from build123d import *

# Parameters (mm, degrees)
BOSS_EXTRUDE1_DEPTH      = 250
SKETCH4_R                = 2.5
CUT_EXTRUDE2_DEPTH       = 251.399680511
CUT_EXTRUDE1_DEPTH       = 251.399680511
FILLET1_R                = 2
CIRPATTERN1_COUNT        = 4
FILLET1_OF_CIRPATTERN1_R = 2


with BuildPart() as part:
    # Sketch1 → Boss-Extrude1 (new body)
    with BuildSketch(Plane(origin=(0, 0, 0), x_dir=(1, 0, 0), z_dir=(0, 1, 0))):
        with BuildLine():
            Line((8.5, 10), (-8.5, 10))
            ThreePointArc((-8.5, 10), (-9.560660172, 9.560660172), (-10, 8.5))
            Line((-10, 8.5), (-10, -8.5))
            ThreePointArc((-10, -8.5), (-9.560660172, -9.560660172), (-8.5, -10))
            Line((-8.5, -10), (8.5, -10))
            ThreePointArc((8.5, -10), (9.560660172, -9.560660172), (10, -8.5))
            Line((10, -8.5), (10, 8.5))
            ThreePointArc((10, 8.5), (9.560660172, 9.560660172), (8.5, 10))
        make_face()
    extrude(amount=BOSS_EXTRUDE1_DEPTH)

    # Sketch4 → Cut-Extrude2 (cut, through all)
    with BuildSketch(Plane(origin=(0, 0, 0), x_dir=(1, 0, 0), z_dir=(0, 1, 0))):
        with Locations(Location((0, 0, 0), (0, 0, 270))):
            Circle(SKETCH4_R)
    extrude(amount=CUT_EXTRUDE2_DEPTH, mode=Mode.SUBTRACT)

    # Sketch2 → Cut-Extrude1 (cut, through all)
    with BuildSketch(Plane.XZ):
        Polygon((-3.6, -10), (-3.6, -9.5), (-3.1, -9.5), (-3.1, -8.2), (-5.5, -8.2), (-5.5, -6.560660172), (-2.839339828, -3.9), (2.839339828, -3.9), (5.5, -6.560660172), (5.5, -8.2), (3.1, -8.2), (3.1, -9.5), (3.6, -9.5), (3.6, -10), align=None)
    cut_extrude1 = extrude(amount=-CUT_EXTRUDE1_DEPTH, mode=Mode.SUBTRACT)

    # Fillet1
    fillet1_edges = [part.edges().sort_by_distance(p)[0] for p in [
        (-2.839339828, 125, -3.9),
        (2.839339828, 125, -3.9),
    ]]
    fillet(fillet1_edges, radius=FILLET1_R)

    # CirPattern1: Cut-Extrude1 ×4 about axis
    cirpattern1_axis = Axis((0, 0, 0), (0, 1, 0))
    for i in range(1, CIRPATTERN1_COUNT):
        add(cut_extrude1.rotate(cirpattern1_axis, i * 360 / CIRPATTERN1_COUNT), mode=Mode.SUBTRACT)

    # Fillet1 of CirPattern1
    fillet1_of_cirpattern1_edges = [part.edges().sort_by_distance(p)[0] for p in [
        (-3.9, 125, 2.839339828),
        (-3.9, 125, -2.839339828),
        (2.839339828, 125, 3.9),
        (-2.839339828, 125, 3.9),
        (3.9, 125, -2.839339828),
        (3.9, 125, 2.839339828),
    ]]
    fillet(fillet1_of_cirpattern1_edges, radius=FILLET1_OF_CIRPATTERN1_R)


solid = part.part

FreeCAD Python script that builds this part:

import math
import FreeCAD as App
import Part
import Sketcher
from FreeCAD import Vector
Q = App.Units.Quantity


def edges_at(feature, points):
    """Names of the edges that pass closest to the given points."""
    edges = feature.Shape.Edges
    near = lambda p: min(range(len(edges)), key=lambda i: edges[i].distToShape(Part.Vertex(*p))[0])
    return sorted({f"Edge{near(p) + 1}" for p in points})


def add_polygon(sketch, points):
    """Adds a closed chain of lines whose ends are joined by coincident constraints."""
    first, n = sketch.GeometryCount, len(points)
    for a, b in zip(points, points[1:] + points[:1]):
        sketch.addGeometry(Part.LineSegment(App.Vector(*a, 0), App.Vector(*b, 0)), False)
    for i in range(n):
        sketch.addConstraint(Sketcher.Constraint("Coincident", first + i, 2, first + (i + 1) % n, 1))

doc = App.newDocument("Part")
params = doc.addObject("Spreadsheet::Sheet", "Params")
for row, (alias, value) in enumerate([
    ("sketch1_radius", "1.5 mm"),
    ("sketch1_width", "17 mm"),
    ("pad1_length", "250 mm"),
    ("sketch2_diameter", "5 mm"),
    ("sketch3_width", "7.2 mm"),
    ("sketch3_width2", "0.5 mm"),
    ("sketch3_width3", "2.4 mm"),
    ("sketch3_height", "1.3 mm"),
    ("fillet_radius", "2 mm"),
    ("fillet2_radius", "2 mm"),
], start=1):
    params.set(f"A{row}", alias)
    params.set(f"B{row}", "=" + value)
    params.setAlias(f"B{row}", alias)

body = doc.addObject("PartDesign::Body", "Body")

# Sketch on XZ plane
sketch1 = body.newObject("Sketcher::SketchObject", "Sketch")
sketch1.AttachmentSupport = (doc.getObject("XZ_Plane"), [""])
sketch1.MapMode = "FlatFace"
sketch1.addGeometry(Part.LineSegment(Vector(8.5, -10, 0), Vector(-8.5, -10, 0)), False)
sketch1.addGeometry(Part.ArcOfCircle(Part.Circle(Vector(-8.5, -8.5, 0), Vector(0, 0, 1), 1.5), math.radians(180), math.radians(270)), False)
sketch1.addGeometry(Part.LineSegment(Vector(-10, -8.5, 0), Vector(-10, 8.5, 0)), False)
sketch1.addGeometry(Part.ArcOfCircle(Part.Circle(Vector(-8.5, 8.5, 0), Vector(0, 0, 1), 1.5), math.radians(90), math.radians(180)), False)
sketch1.addGeometry(Part.LineSegment(Vector(-8.5, 10, 0), Vector(8.5, 10, 0)), False)
sketch1.addGeometry(Part.ArcOfCircle(Part.Circle(Vector(8.5, 8.5, 0), Vector(0, 0, 1), 1.5), math.radians(0), math.radians(90)), False)
sketch1.addGeometry(Part.LineSegment(Vector(10, 8.5, 0), Vector(10, -8.5, 0)), False)
sketch1.addGeometry(Part.ArcOfCircle(Part.Circle(Vector(8.5, -8.5, 0), Vector(0, 0, 1), 1.5), math.radians(-90), math.radians(0)), False)
sketch1.addConstraint(Sketcher.Constraint("Tangent", 0, 2, 1, 2))
sketch1.addConstraint(Sketcher.Constraint("Tangent", 1, 1, 2, 1))
sketch1.addConstraint(Sketcher.Constraint("Tangent", 2, 2, 3, 2))
sketch1.addConstraint(Sketcher.Constraint("Tangent", 3, 1, 4, 1))
sketch1.addConstraint(Sketcher.Constraint("Tangent", 4, 2, 5, 2))
sketch1.addConstraint(Sketcher.Constraint("Tangent", 5, 1, 6, 1))
sketch1.addConstraint(Sketcher.Constraint("Tangent", 6, 2, 7, 2))
sketch1.addConstraint(Sketcher.Constraint("Tangent", 7, 1, 0, 1))
sketch1.addConstraint(Sketcher.Constraint("Horizontal", 0))
sketch1.addConstraint(Sketcher.Constraint("Vertical", 2))
sketch1.addConstraint(Sketcher.Constraint("Horizontal", 4))
sketch1.addConstraint(Sketcher.Constraint("Vertical", 6))
sketch1.addConstraint(Sketcher.Constraint("Equal", 1, 3))
sketch1.addConstraint(Sketcher.Constraint("Equal", 3, 5))
sketch1.addConstraint(Sketcher.Constraint("Equal", 5, 7))
sketch1.addConstraint(Sketcher.Constraint("Symmetric", 1, 3, 5, 3, -1, 1))
sketch1.addConstraint(Sketcher.Constraint("Equal", 4, 2))
sketch1.addConstraint(Sketcher.Constraint("Radius", 1, Q("1.5 mm")))
sketch1.addConstraint(Sketcher.Constraint("DistanceX", 0, 2, 0, 1, Q("17 mm")))
sketch1.setExpression("Constraints[17]", "Params.sketch1_radius")
sketch1.setExpression("Constraints[18]", "Params.sketch1_width")
pad1 = body.newObject("PartDesign::Pad", "Pad")
pad1.Profile = sketch1
pad1.setExpression("Length", "Params.pad1_length")
pad1.Reversed = True

# Sketch on XZ plane
sketch2 = body.newObject("Sketcher::SketchObject", "Sketch001")
sketch2.AttachmentSupport = (doc.getObject("XZ_Plane"), [""])
sketch2.MapMode = "FlatFace"
sketch2.addGeometry(Part.Circle(Vector(0, 0, 0), Vector(0, 0, 1), 2.5), False)
sketch2.addConstraint(Sketcher.Constraint("Coincident", 0, 3, -1, 1))
sketch2.addConstraint(Sketcher.Constraint("Diameter", 0, Q("5 mm")))
sketch2.setExpression("Constraints[1]", "Params.sketch2_diameter")
pocket1 = body.newObject("PartDesign::Pocket", "Pocket")
pocket1.Profile = sketch2
pocket1.Type = "ThroughAll"

# Sketch on XZ plane
sketch3 = body.newObject("Sketcher::SketchObject", "Sketch002")
sketch3.AttachmentSupport = (doc.getObject("XZ_Plane"), [""])
sketch3.MapMode = "FlatFace"
add_polygon(sketch3, [(-3.6, -9.5), (-3.6, -10), (3.6, -10), (3.6, -9.5), (3.1, -9.5), (3.1, -8.2), (5.5, -8.2), (5.5, -6.6), (2.8, -3.9), (-2.8, -3.9), (-5.5, -6.6), (-5.5, -8.2), (-3.1, -8.2), (-3.1, -9.5)])  # lines 0-13
sketch3.addConstraint(Sketcher.Constraint("Vertical", 0))
sketch3.addConstraint(Sketcher.Constraint("Horizontal", 1))
sketch3.addConstraint(Sketcher.Constraint("Vertical", 2))
sketch3.addConstraint(Sketcher.Constraint("Horizontal", 3))
sketch3.addConstraint(Sketcher.Constraint("Vertical", 4))
sketch3.addConstraint(Sketcher.Constraint("Horizontal", 5))
sketch3.addConstraint(Sketcher.Constraint("Vertical", 6))
sketch3.addConstraint(Sketcher.Constraint("Horizontal", 8))
sketch3.addConstraint(Sketcher.Constraint("Vertical", 10))
sketch3.addConstraint(Sketcher.Constraint("Horizontal", 11))
sketch3.addConstraint(Sketcher.Constraint("Vertical", 12))
sketch3.addConstraint(Sketcher.Constraint("Horizontal", 13))
sketch3.addConstraint(Sketcher.Constraint("Symmetric", 6, 2, 9, 2, -2))
sketch3.addConstraint(Sketcher.Constraint("Symmetric", 4, 2, 11, 2, -2))
sketch3.addConstraint(Sketcher.Constraint("Symmetric", 2, 2, 13, 2, -2))
sketch3.addConstraint(Sketcher.Constraint("Perpendicular", 7, 9))
sketch3.addConstraint(Sketcher.Constraint("Equal", 13, 0))
sketch3.addConstraint(Sketcher.Constraint("Equal", 7, 9))
sketch3.addConstraint(Sketcher.Constraint("DistanceX", 1, 1, 1, 2, Q("7.2 mm")))
sketch3.addConstraint(Sketcher.Constraint("DistanceX", 3, 2, 3, 1, Q("0.5 mm")))
sketch3.addConstraint(Sketcher.Constraint("DistanceX", 5, 1, 5, 2, Q("2.4 mm")))
sketch3.addConstraint(Sketcher.Constraint("DistanceY", 4, 1, 4, 2, Q("1.3 mm")))
sketch3.addConstraint(Sketcher.Constraint("DistanceY", 0, 2, -1, 1, Q("10 mm")))
sketch3.addConstraint(Sketcher.Constraint("DistanceY", 7, 2, -1, 1, Q("3.9 mm")))
sketch3.addConstraint(Sketcher.Constraint("DistanceX", 8, 2, 8, 1, Q("5.67868 mm")))
sketch3.setExpression("Constraints[32]", "Params.sketch3_width")
sketch3.setExpression("Constraints[33]", "Params.sketch3_width2")
sketch3.setExpression("Constraints[34]", "Params.sketch3_width3")
sketch3.setExpression("Constraints[35]", "Params.sketch3_height")
pocket2 = body.newObject("PartDesign::Pocket", "Pocket001")
pocket2.Profile = sketch3
pocket2.Type = "ThroughAll"
doc.recompute()

fillet = body.newObject("PartDesign::Fillet", "Fillet")
fillet.Base = (pocket2, edges_at(pocket2, [(-2.839, 125, -3.9), (2.839, 125, -3.9)]))
fillet.setExpression("Radius", "Params.fillet_radius")
doc.recompute()

polarpattern = body.newObject("PartDesign::PolarPattern", "PolarPattern")
polarpattern.Originals = [pocket2]
polarpattern.Axis = (doc.getObject("Y_Axis"), [""])
polarpattern.Angle = 360
polarpattern.Occurrences = 4
body.Tip = polarpattern
doc.recompute()

fillet2 = body.newObject("PartDesign::Fillet", "Fillet001")
fillet2.Base = (polarpattern, edges_at(polarpattern, [
    (-3.9, 125, 2.839),
    (-3.9, 125, -2.839),
    (2.839, 125, 3.9),
    (-2.839, 125, 3.9),
    (3.9, 125, -2.839),
    (3.9, 125, 2.839),
]))
fillet2.setExpression("Radius", "Params.fillet2_radius")

doc.recompute()
